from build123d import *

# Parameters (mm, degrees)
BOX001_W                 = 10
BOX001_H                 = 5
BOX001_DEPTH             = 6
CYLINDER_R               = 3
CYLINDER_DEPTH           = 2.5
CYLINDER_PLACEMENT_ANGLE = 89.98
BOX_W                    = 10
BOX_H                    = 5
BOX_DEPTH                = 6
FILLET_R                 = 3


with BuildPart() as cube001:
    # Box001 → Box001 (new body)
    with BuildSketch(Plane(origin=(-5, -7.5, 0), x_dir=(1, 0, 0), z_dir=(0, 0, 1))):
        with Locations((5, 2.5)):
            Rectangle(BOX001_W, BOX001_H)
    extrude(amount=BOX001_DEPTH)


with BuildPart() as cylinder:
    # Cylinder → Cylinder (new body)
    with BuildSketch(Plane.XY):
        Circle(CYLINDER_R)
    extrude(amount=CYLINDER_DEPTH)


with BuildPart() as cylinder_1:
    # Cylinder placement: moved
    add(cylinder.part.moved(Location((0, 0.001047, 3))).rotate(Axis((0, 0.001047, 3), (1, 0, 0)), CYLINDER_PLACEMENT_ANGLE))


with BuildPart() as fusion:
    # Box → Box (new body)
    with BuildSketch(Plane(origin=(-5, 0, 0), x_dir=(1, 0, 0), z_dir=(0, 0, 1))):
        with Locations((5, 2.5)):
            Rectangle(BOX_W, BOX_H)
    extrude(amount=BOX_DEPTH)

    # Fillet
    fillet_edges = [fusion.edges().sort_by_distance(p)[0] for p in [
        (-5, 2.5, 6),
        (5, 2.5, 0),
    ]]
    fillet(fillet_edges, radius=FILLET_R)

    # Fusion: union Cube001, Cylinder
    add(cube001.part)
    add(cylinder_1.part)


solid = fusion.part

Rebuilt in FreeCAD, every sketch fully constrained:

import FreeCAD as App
import Part
import Sketcher

V = App.Vector
Q = App.Units.Quantity


def edges_at(feature, points):
    """Names of the edges that pass closest to the given points."""
    edges = feature.Shape.Edges
    near = lambda p: min(range(len(edges)), key=lambda i: edges[i].distToShape(Part.Vertex(*p))[0])
    return sorted({f"Edge{near(p) + 1}" for p in points})

doc = App.newDocument("Part")
params = doc.addObject("Spreadsheet::Sheet", "Params")
for row, (alias, value) in enumerate([
    ("sketch1_width", "10 mm"),
    ("sketch1_height", "5 mm"),
    ("pad1_length", "6 mm"),
    ("sketch2_diameter", "6 mm"),
    ("pad2_length", "2.5 mm"),
    ("sketch3_width", "10 mm"),
    ("sketch3_height", "5 mm"),
    ("pad3_length", "6 mm"),
    ("fillet_radius", "3 mm"),
], start=1):
    params.set(f"A{row}", alias)
    params.set(f"B{row}", "=" + value)
    params.setAlias(f"B{row}", alias)

body = doc.addObject("PartDesign::Body", "Body")

sketch1 = doc.addObject("Sketcher::SketchObject", "Sketch")
body.addObject(sketch1)
sketch1.AttachmentSupport = (doc.XY_Plane, [""])
sketch1.MapMode = "FlatFace"
sketch1.addGeometry(Part.LineSegment(V(-5, -2, 0), V(-5, -8, 0)), False)
sketch1.addGeometry(Part.LineSegment(V(-5, -8, 0), V(5, -8, 0)), False)
sketch1.addGeometry(Part.LineSegment(V(5, -8, 0), V(5, -2, 0)), False)
sketch1.addGeometry(Part.LineSegment(V(5, -2, 0), V(-5, -2, 0)), False)
sketch1.addConstraint(Sketcher.Constraint("Coincident", 0, 2, 1, 1))
sketch1.addConstraint(Sketcher.Constraint("Coincident", 1, 2, 2, 1))
sketch1.addConstraint(Sketcher.Constraint("Coincident", 2, 2, 3, 1))
sketch1.addConstraint(Sketcher.Constraint("Coincident", 3, 2, 0, 1))
sketch1.addConstraint(Sketcher.Constraint("Vertical", 0))
sketch1.addConstraint(Sketcher.Constraint("Horizontal", 1))
sketch1.addConstraint(Sketcher.Constraint("Vertical", 2))
sketch1.addConstraint(Sketcher.Constraint("Horizontal", 3))
sketch1.addConstraint(Sketcher.Constraint("DistanceX", 1, 1, 1, 2, Q("10 mm")))
sketch1.addConstraint(Sketcher.Constraint("DistanceY", 0, 2, 0, 1, Q("5 mm")))
sketch1.addConstraint(Sketcher.Constraint("DistanceX", 0, 2, -1, 1, Q("5 mm")))
sketch1.addConstraint(Sketcher.Constraint("DistanceY", 0, 2, -1, 1, Q("7.5 mm")))
sketch1.setExpression("Constraints[8]", "Params.sketch1_width")
sketch1.setExpression("Constraints[9]", "Params.sketch1_height")
pad1 = doc.addObject("PartDesign::Pad", "Pad")
body.addObject(pad1)
pad1.Profile = sketch1
pad1.setExpression("Length", "Params.pad1_length")
body2 = doc.addObject("PartDesign::Body", "Body001")

sketch2 = doc.addObject("Sketcher::SketchObject", "Sketch001")
body2.addObject(sketch2)
sketch2.AttachmentSupport = (doc.getObject("XY_Plane001"), [""])
sketch2.MapMode = "FlatFace"
sketch2.addGeometry(Part.Circle(V(0, 0, 0), V(0, 0, 1), 3), False)
sketch2.addConstraint(Sketcher.Constraint("Coincident", 0, 3, -1, 1))
sketch2.addConstraint(Sketcher.Constraint("Diameter", 0, Q("6 mm")))
sketch2.setExpression("Constraints[1]", "Params.sketch2_diameter")
pad2 = doc.addObject("PartDesign::Pad", "Pad001")
body2.addObject(pad2)
pad2.Profile = sketch2
pad2.setExpression("Length", "Params.pad2_length")
body3 = doc.addObject("PartDesign::Body", "Body002")
doc.recompute()

body2.Placement = App.Placement(V(0, 0.001047, 3), App.Rotation(V(1, 0, 0), 89.98))
boolean = doc.addObject("PartDesign::Boolean", "Boolean")
body3.addObject(boolean)
boolean.Type = "Fuse"
boolean.addObjects([body2])
body4 = doc.addObject("PartDesign::Body", "Body003")
body4.AllowCompound = True

sketch3 = doc.addObject("Sketcher::SketchObject", "Sketch002")
body4.addObject(sketch3)
sketch3.AttachmentSupport = (doc.getObject("XY_Plane003"), [""])
sketch3.MapMode = "FlatFace"
sketch3.addGeometry(Part.LineSegment(V(-5, 5, 0), V(-5, 0, 0)), False)
sketch3.addGeometry(Part.LineSegment(V(-5, 0, 0), V(5, 0, 0)), False)
sketch3.addGeometry(Part.LineSegment(V(5, 0, 0), V(5, 5, 0)), False)
sketch3.addGeometry(Part.LineSegment(V(5, 5, 0), V(-5, 5, 0)), False)
sketch3.addConstraint(Sketcher.Constraint("Coincident", 0, 2, 1, 1))
sketch3.addConstraint(Sketcher.Constraint("Coincident", 1, 2, 2, 1))
sketch3.addConstraint(Sketcher.Constraint("Coincident", 2, 2, 3, 1))
sketch3.addConstraint(Sketcher.Constraint("Coincident", 3, 2, 0, 1))
sketch3.addConstraint(Sketcher.Constraint("Vertical", 0))
sketch3.addConstraint(Sketcher.Constraint("Horizontal", 1))
sketch3.addConstraint(Sketcher.Constraint("Vertical", 2))
sketch3.addConstraint(Sketcher.Constraint("Horizontal", 3))
sketch3.addConstraint(Sketcher.Constraint("Symmetric", 0, 2, 1, 2, -1, 1))
sketch3.addConstraint(Sketcher.Constraint("DistanceX", 1, 1, 1, 2, Q("10 mm")))
sketch3.addConstraint(Sketcher.Constraint("DistanceY", 0, 2, 0, 1, Q("5 mm")))
sketch3.setExpression("Constraints[9]", "Params.sketch3_width")
sketch3.setExpression("Constraints[10]", "Params.sketch3_height")
pad3 = doc.addObject("PartDesign::Pad", "Pad002")
body4.addObject(pad3)
pad3.Profile = sketch3
pad3.setExpression("Length", "Params.pad3_length")
doc.recompute()

fillet = doc.addObject("PartDesign::Fillet", "Fillet")
body4.addObject(fillet)
fillet.Base = (pad3, edges_at(pad3, [(-5, 2.5, 6), (5, 2.5, 0)]))
fillet.setExpression("Radius", "Params.fillet_radius")
doc.recompute()

boolean2 = doc.addObject("PartDesign::Boolean", "Boolean001")
body4.addObject(boolean2)
boolean2.Type = "Fuse"
boolean2.addObjects([body])
doc.recompute()

boolean3 = doc.addObject("PartDesign::Boolean", "Boolean002")
body4.addObject(boolean3)
boolean3.Type = "Fuse"
boolean3.addObjects([body3])

doc.recompute()
